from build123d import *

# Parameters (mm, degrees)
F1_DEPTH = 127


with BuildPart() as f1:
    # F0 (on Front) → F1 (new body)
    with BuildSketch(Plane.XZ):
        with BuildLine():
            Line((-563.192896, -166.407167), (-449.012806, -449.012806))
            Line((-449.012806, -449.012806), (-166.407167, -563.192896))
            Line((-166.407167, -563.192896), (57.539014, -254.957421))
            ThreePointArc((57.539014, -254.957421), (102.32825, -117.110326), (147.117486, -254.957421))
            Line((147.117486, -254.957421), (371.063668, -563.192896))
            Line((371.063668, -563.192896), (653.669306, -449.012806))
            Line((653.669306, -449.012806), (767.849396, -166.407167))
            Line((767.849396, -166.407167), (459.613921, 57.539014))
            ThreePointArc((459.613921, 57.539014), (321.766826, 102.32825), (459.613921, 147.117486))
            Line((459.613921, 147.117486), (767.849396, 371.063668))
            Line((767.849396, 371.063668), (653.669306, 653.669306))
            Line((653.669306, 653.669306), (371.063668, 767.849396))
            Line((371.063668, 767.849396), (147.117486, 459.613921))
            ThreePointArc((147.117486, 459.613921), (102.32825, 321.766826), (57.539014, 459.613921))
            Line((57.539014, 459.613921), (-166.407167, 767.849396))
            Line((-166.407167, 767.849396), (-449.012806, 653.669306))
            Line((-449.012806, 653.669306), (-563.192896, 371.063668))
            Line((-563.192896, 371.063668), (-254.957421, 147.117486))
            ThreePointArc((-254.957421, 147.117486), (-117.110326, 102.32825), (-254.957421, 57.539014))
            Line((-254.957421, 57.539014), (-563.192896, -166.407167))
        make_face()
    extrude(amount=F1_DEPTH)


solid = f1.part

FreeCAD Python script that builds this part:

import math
import FreeCAD as App
import Part
import Sketcher
from FreeCAD import Vector
Q = App.Units.Quantity

doc = App.newDocument("Part")
params = doc.addObject("Spreadsheet::Sheet", "Params")
for row, (alias, value) in enumerate([
    ("sketch1_radius", "3 in"),
    ("sketch1_length", "12 in"),
    ("sketch1_length2", "15 in"),
    ("pad1_length", "5 in"),
], start=1):
    params.set(f"A{row}", alias)
    params.set(f"B{row}", "=" + value)
    params.setAlias(f"B{row}", alias)

body = doc.addObject("PartDesign::Body", "Body")

# Sketch on XZ plane
sketch1 = body.newObject("Sketcher::SketchObject", "Sketch")
sketch1.AttachmentSupport = (doc.getObject("XZ_Plane"), [""])
sketch1.MapMode = "FlatFace"
sketch1.addGeometry([
    Part.LineSegment(Vector(-563.192896, -166.407167, 0), Vector(-449.012806, -449.012806, 0)),  # 0
    Part.LineSegment(Vector(-449.012806, -449.012806, 0), Vector(-166.407167, -563.192896, 0)),  # 1
    Part.LineSegment(Vector(-166.407167, -563.192896, 0), Vector(57.539014, -254.957421, 0)),  # 2
    Part.ArcOfCircle(Part.Circle(Vector(102.32825, -193.310326, 0), Vector(0, 0, 1), 76.2), math.radians(-54), math.radians(234)),  # 3
    Part.LineSegment(Vector(147.117486, -254.957421, 0), Vector(371.063668, -563.192896, 0)),  # 4
    Part.LineSegment(Vector(371.063668, -563.192896, 0), Vector(653.669306, -449.012806, 0)),  # 5
    Part.LineSegment(Vector(653.669306, -449.012806, 0), Vector(767.849396, -166.407167, 0)),  # 6
    Part.LineSegment(Vector(767.849396, -166.407167, 0), Vector(459.613921, 57.539014, 0)),  # 7
    Part.ArcOfCircle(Part.Circle(Vector(397.966826, 102.32825, 0), Vector(0, 0, 1), 76.2), math.radians(36), math.radians(324)),  # 8
    Part.LineSegment(Vector(459.613921, 147.117486, 0), Vector(767.849396, 371.063668, 0)),  # 9
    Part.LineSegment(Vector(767.849396, 371.063668, 0), Vector(653.669306, 653.669306, 0)),  # 10
    Part.LineSegment(Vector(653.669306, 653.669306, 0), Vector(371.063668, 767.849396, 0)),  # 11
    Part.LineSegment(Vector(371.063668, 767.849396, 0), Vector(147.117486, 459.613921, 0)),  # 12
    Part.ArcOfCircle(Part.Circle(Vector(102.32825, 397.966826, 0), Vector(0, 0, 1), 76.2), math.radians(126), math.radians(414)),  # 13
    Part.LineSegment(Vector(57.539014, 459.613921, 0), Vector(-166.407167, 767.849396, 0)),  # 14
    Part.LineSegment(Vector(-166.407167, 767.849396, 0), Vector(-449.012806, 653.669306, 0)),  # 15
    Part.LineSegment(Vector(-449.012806, 653.669306, 0), Vector(-563.192896, 371.063668, 0)),  # 16
    Part.LineSegment(Vector(-563.192896, 371.063668, 0), Vector(-254.957421, 147.117486, 0)),  # 17
    Part.ArcOfCircle(Part.Circle(Vector(-193.310326, 102.32825, 0), Vector(0, 0, 1), 76.2), math.radians(-144), math.radians(144)),  # 18
    Part.LineSegment(Vector(-254.957421, 57.539014, 0), Vector(-563.192896, -166.407167, 0)),  # 19
], False)
sketch1.addConstraint([
    Sketcher.Constraint("Coincident", 0, 2, 1, 1),
    Sketcher.Constraint("Coincident", 1, 2, 2, 1),
    Sketcher.Constraint("Coincident", 2, 2, 3, 2),
    Sketcher.Constraint("Coincident", 3, 1, 4, 1),
    Sketcher.Constraint("Coincident", 4, 2, 5, 1),
    Sketcher.Constraint("Coincident", 5, 2, 6, 1),
    Sketcher.Constraint("Coincident", 6, 2, 7, 1),
    Sketcher.Constraint("Coincident", 7, 2, 8, 2),
    Sketcher.Constraint("Coincident", 8, 1, 9, 1),
    Sketcher.Constraint("Coincident", 9, 2, 10, 1),
    Sketcher.Constraint("Coincident", 10, 2, 11, 1),
    Sketcher.Constraint("Coincident", 11, 2, 12, 1),
    Sketcher.Constraint("Coincident", 12, 2, 13, 2),
    Sketcher.Constraint("Coincident", 13, 1, 14, 1),
    Sketcher.Constraint("Coincident", 14, 2, 15, 1),
    Sketcher.Constraint("Coincident", 15, 2, 16, 1),
    Sketcher.Constraint("Coincident", 16, 2, 17, 1),
    Sketcher.Constraint("Coincident", 17, 2, 18, 2),
    Sketcher.Constraint("Coincident", 18, 1, 19, 1),
    Sketcher.Constraint("Coincident", 19, 2, 0, 1),
    Sketcher.Constraint("Equal", 3, 8),
    Sketcher.Constraint("Equal", 8, 13),
    Sketcher.Constraint("Equal", 13, 18),
    Sketcher.Constraint("Perpendicular", 0, 5),
    Sketcher.Constraint("Perpendicular", 1, 6),
    Sketcher.Constraint("Perpendicular", 2, 7),
    Sketcher.Constraint("Perpendicular", 4, 9),
    Sketcher.Constraint("Perpendicular", 5, 10),
    Sketcher.Constraint("Perpendicular", 6, 11),
    Sketcher.Constraint("Perpendicular", 7, 12),
    Sketcher.Constraint("Perpendicular", 9, 14),
    Sketcher.Constraint("Perpendicular", 10, 15),
    Sketcher.Constraint("Perpendicular", 11, 16),
    Sketcher.Constraint("Perpendicular", 12, 17),
    Sketcher.Constraint("Perpendicular", 14, 19),
    Sketcher.Constraint("Horizontal", 8, 3, 18, 3),
    Sketcher.Constraint("Horizontal", 2, 2, 3, 1),
    Sketcher.Constraint("Horizontal", 1, 2, 4, 2),
    Sketcher.Constraint("Horizontal", 0, 2, 5, 2),
    Sketcher.Constraint("Horizontal", 12, 2, 13, 1),
    Sketcher.Constraint("Horizontal", 11, 2, 14, 2),
    Sketcher.Constraint("Horizontal", 10, 2, 15, 2),
    Sketcher.Constraint("Horizontal", 9, 2, 16, 2),
    Sketcher.Constraint("Horizontal", 8, 1, 17, 2),
    Sketcher.Constraint("Horizontal", 7, 2, 18, 1),
    Sketcher.Constraint("Horizontal", 6, 2, 19, 2),
    Sketcher.Constraint("Vertical", 3, 3, 13, 3),
    Sketcher.Constraint("Vertical", 7, 2, 8, 1),
    Sketcher.Constraint("Vertical", 6, 2, 9, 2),
    Sketcher.Constraint("Vertical", 5, 2, 10, 2),
    Sketcher.Constraint("Vertical", 4, 2, 11, 2),
    Sketcher.Constraint("Vertical", 3, 1, 12, 2),
    Sketcher.Constraint("Vertical", 1, 2, 14, 2),
    Sketcher.Constraint("Equal", 0, 1),
    Sketcher.Constraint("Equal", 4, 7),
    Sketcher.Constraint("Radius", 3, Q("3 in")),
    Sketcher.Constraint("Distance", 0, Q("12 in")),
    Sketcher.Constraint("Distance", 2, Q("15 in")),
    Sketcher.Constraint("Angle", 0, Q("-68 deg")),
    Sketcher.Constraint("Angle", 2, Q("54 deg")),
    Sketcher.Constraint("DistanceX", -1, 1, 3, 3, 102.32825),
    Sketcher.Constraint("DistanceY", -1, 1, 8, 3, 102.32825),
    Sketcher.Constraint("DistanceY", 2, 2, -1, 1, 254.957421),
    Sketcher.Constraint("DistanceX", -1, 1, 4, 2, 371.063668),
])
sketch1.setExpression("Constraints[55]", "Params.sketch1_radius")
sketch1.setExpression("Constraints[56]", "Params.sketch1_length")
sketch1.setExpression("Constraints[57]", "Params.sketch1_length2")
pad1 = body.newObject("PartDesign::Pad", "Pad")
pad1.Profile = sketch1
pad1.setExpression("Length", "Params.pad1_length")

doc.recompute()
